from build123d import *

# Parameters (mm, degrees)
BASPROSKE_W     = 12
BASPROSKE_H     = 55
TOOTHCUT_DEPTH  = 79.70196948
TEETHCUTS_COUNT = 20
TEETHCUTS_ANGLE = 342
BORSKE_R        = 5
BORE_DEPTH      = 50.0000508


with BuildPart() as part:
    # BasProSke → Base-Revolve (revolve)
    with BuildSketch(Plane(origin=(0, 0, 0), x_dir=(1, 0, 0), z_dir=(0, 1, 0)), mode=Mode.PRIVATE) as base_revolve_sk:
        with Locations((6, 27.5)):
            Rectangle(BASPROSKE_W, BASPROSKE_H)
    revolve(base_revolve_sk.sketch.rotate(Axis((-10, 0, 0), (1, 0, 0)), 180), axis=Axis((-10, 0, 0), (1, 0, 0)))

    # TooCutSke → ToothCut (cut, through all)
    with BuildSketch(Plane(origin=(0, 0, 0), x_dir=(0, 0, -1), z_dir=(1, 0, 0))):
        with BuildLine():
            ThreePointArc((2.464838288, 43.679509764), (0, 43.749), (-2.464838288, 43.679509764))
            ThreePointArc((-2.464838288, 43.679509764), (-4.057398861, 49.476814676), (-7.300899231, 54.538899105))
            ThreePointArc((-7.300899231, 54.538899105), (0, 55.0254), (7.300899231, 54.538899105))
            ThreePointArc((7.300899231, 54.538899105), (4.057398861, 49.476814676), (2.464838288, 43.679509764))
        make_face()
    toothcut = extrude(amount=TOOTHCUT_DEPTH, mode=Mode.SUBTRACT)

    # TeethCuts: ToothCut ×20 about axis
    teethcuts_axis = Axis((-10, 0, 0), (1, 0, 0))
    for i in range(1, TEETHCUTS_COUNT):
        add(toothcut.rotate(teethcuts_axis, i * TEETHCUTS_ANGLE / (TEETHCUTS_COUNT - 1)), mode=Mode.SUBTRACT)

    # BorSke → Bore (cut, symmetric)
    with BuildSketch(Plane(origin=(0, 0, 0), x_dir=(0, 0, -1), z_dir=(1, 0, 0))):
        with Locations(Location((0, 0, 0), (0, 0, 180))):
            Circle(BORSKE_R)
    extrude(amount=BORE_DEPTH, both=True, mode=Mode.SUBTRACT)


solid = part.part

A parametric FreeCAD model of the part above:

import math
import FreeCAD as App
import Part
import Sketcher

V = App.Vector
Q = App.Units.Quantity

doc = App.newDocument("Part")
body = doc.addObject("PartDesign::Body", "Body")

# Sketch on XZ plane
sketch1 = body.newObject("Sketcher::SketchObject", "Sketch")
sketch1.AttachmentSupport = (doc.getObject("XZ_Plane"), [""])
sketch1.MapMode = "FlatFace"
sketch1.addGeometry([
    Part.LineSegment(V(0, -55, 0), V(0, 0, 0)),
    Part.LineSegment(V(0, 0, 0), V(12, 0, 0)),
    Part.LineSegment(V(12, 0, 0), V(12, -55, 0)),
    Part.LineSegment(V(12, -55, 0), V(0, -55, 0)),
], False)
sketch1.addConstraint([
    Sketcher.Constraint("Coincident", 0, 2, 1, 1),
    Sketcher.Constraint("Coincident", 1, 2, 2, 1),
    Sketcher.Constraint("Coincident", 2, 2, 3, 1),
    Sketcher.Constraint("Coincident", 3, 2, 0, 1),
    Sketcher.Constraint("Vertical", 0),
    Sketcher.Constraint("Horizontal", 1),
    Sketcher.Constraint("Vertical", 2),
    Sketcher.Constraint("Horizontal", 3),
    Sketcher.Constraint("Coincident", 0, 2, -1, 1),
    Sketcher.Constraint("DistanceX", 1, 1, 1, 2, Q("12 mm")),
    Sketcher.Constraint("DistanceY", 0, 1, 0, 2, Q("55 mm")),
])
revolution = body.newObject("PartDesign::Revolution", "Revolution")
revolution.Profile = sketch1
revolution.ReferenceAxis = (sketch1, ["H_Axis"])
revolution.Angle = 360

# Sketch on YZ plane
sketch2 = body.newObject("Sketcher::SketchObject", "Sketch001")
sketch2.AttachmentSupport = (doc.getObject("YZ_Plane"), [""])
sketch2.MapMode = "FlatFace"
sketch2.addGeometry([
    Part.ArcOfCircle(Part.Circle(V(0, 0, 0), V(0, 0, 1), 43.7), math.radians(-3.23), math.radians(3.23)),
    Part.ArcOfCircle(Part.Circle(V(41.3, -22.3, 0), V(0, 0, 1), 20), math.radians(49), math.radians(83)),
    Part.ArcOfCircle(Part.Circle(V(0, 0, 0), V(0, 0, 1), 55), math.radians(-7.62), math.radians(7.62)),
    Part.ArcOfCircle(Part.Circle(V(41.3, 22.3, 0), V(0, 0, 1), 20), math.radians(-83), math.radians(-49)),
], False)
sketch2.addConstraint([
    Sketcher.Constraint("Coincident", 0, 1, 1, 2),
    Sketcher.Constraint("Coincident", 1, 1, 2, 1),
    Sketcher.Constraint("Coincident", 2, 2, 3, 2),
    Sketcher.Constraint("Coincident", 3, 1, 0, 2),
    Sketcher.Constraint("Coincident", 0, 3, -1, 1),
    Sketcher.Constraint("Coincident", 2, 3, -1, 1),
    Sketcher.Constraint("Equal", 1, 3),
    Sketcher.Constraint("Symmetric", 1, 3, 3, 3, -1),
    Sketcher.Constraint("Radius", 1, Q("20 mm")),
    Sketcher.Constraint("Radius", 0, Q("43.749 mm")),
    Sketcher.Constraint("Radius", 2, Q("55.0254 mm")),
    Sketcher.Constraint("DistanceX", -1, 1, 1, 1, Q("54.538899 mm")),
    Sketcher.Constraint("DistanceX", -1, 1, 1, 3, Q("41.340468 mm")),
])
pocket1 = body.newObject("PartDesign::Pocket", "Pocket")
pocket1.Profile = sketch2
pocket1.Type = "ThroughAll"
pocket1.Reversed = True
doc.recompute()

polarpattern = body.newObject("PartDesign::PolarPattern", "PolarPattern")
polarpattern.Originals = [pocket1]
polarpattern.Axis = (doc.getObject("X_Axis"), [""])
polarpattern.Angle = 360
polarpattern.Occurrences = 20
body.Tip = polarpattern

# Sketch on YZ plane
sketch3 = body.newObject("Sketcher::SketchObject", "Sketch002")
sketch3.AttachmentSupport = (doc.getObject("YZ_Plane"), [""])
sketch3.MapMode = "FlatFace"
sketch3.addGeometry(Part.Circle(V(0, 0, 0), V(0, 0, 1), 5), False)
sketch3.addConstraint([
    Sketcher.Constraint("Coincident", 0, 3, -1, 1),
    Sketcher.Constraint("Diameter", 0, Q("10 mm")),
])
pocket2 = body.newObject("PartDesign::Pocket", "Pocket001")
pocket2.Profile = sketch3
pocket2.Length = 100.000102
pocket2.Midplane = True

doc.recompute()
